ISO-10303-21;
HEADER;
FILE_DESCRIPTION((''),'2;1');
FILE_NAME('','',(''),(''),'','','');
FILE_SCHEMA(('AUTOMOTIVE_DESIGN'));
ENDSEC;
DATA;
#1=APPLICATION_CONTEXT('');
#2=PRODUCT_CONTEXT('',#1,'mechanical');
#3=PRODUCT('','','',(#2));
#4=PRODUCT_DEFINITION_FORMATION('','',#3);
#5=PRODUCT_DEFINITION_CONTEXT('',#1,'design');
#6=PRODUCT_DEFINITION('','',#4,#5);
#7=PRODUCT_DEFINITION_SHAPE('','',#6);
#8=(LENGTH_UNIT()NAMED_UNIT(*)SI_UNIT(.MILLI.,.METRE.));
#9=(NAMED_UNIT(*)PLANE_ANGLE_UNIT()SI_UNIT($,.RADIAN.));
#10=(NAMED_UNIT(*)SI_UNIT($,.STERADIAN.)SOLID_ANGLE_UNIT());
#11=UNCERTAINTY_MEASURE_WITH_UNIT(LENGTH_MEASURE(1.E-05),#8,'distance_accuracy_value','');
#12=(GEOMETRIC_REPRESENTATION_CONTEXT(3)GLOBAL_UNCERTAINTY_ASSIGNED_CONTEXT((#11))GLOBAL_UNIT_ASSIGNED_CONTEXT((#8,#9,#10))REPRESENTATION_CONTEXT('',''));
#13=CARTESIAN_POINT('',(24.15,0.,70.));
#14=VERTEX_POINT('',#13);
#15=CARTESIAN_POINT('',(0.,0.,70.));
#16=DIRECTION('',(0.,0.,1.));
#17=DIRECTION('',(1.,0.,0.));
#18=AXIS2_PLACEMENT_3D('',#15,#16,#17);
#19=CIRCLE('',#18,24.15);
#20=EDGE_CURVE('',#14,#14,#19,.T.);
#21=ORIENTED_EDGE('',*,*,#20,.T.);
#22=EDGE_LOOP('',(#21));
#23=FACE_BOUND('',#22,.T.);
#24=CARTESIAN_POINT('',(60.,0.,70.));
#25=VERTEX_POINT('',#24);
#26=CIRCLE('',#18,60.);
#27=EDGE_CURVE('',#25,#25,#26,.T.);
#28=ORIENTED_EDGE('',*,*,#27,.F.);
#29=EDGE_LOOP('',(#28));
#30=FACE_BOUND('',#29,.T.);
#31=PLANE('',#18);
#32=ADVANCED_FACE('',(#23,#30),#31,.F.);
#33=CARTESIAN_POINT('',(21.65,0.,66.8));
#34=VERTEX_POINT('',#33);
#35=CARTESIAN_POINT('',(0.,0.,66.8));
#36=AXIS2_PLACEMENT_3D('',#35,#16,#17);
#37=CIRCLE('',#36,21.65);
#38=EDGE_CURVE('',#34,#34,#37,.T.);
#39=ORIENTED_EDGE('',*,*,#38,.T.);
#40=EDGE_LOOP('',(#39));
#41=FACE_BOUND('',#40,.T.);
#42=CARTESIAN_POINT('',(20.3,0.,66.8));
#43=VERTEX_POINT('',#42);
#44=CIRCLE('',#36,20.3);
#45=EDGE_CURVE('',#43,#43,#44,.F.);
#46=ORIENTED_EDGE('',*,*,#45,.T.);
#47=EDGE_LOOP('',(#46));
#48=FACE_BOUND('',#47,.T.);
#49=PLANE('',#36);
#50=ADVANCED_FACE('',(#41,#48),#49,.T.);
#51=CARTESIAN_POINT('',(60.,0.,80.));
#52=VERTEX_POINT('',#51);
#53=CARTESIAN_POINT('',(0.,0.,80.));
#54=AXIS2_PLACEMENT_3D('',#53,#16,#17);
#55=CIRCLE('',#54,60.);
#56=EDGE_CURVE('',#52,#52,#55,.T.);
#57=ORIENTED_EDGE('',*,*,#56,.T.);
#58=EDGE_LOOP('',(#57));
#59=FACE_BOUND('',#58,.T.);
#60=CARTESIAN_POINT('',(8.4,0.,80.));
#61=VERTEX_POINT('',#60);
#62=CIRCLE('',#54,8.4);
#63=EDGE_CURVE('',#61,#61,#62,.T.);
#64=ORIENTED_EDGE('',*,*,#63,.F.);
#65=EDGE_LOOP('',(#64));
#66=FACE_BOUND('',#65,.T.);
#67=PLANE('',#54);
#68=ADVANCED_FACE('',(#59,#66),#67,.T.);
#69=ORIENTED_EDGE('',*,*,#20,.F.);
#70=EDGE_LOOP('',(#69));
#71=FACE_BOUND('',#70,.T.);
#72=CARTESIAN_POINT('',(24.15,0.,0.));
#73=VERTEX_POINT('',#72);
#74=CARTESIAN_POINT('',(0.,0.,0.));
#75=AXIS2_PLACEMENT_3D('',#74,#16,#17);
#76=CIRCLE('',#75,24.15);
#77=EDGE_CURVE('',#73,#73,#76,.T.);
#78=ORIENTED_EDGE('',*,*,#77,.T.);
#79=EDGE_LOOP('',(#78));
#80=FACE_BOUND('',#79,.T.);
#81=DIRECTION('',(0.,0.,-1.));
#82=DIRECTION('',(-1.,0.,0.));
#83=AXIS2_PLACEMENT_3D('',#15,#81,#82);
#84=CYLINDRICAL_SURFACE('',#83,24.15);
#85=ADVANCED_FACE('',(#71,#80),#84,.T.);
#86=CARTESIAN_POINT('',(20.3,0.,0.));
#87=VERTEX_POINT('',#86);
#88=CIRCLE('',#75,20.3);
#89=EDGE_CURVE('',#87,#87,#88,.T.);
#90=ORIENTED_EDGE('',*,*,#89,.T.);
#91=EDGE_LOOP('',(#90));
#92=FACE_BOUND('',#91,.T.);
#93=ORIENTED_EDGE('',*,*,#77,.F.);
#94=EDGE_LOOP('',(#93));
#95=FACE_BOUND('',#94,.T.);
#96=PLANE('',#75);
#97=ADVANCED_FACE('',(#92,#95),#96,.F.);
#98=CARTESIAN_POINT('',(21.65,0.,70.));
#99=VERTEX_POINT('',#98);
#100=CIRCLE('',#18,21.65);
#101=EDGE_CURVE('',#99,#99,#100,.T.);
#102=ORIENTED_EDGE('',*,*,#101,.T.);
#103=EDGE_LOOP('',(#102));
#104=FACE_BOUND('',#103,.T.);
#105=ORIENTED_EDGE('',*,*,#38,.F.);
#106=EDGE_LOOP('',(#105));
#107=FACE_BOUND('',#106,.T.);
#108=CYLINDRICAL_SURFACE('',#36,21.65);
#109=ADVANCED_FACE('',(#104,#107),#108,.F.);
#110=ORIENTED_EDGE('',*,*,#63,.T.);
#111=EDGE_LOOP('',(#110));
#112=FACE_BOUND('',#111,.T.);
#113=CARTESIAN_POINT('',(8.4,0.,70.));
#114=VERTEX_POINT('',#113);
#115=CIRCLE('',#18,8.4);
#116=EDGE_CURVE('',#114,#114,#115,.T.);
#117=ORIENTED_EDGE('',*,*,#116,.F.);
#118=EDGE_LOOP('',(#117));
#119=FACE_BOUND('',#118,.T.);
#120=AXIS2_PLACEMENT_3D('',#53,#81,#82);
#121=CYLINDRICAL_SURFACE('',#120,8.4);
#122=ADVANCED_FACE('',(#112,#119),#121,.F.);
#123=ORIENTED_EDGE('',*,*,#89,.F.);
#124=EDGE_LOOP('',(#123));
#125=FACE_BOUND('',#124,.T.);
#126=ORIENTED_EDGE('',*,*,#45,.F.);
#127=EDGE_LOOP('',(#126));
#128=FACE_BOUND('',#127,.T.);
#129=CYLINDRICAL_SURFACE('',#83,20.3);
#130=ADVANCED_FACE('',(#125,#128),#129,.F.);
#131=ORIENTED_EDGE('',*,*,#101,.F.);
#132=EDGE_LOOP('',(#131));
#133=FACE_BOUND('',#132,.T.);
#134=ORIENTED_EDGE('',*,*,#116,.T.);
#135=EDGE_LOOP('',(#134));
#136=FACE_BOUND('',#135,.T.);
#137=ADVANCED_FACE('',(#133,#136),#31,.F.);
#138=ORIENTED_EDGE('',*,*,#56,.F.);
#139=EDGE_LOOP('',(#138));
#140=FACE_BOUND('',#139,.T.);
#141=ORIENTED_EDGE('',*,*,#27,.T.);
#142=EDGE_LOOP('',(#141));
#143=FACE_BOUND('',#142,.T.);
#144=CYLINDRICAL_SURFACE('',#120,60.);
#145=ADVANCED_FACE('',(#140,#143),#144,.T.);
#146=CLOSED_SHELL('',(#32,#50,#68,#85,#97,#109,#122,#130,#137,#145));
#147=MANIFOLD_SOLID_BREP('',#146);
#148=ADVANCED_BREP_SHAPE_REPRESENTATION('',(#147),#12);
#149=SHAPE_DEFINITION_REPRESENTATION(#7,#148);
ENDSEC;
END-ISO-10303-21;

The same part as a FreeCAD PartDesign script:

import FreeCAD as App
import Part
import Sketcher

V = App.Vector

doc = App.newDocument("Part")
body = doc.addObject("PartDesign::Body", "Body")

# Sketch on XY plane
sketch1 = body.newObject("Sketcher::SketchObject", "Sketch")
sketch1.AttachmentSupport = (doc.getObject("XY_Plane"), [""])
sketch1.MapMode = "FlatFace"
sketch1.addGeometry([
    Part.Circle(V(0, 0, 0), V(0, 0, 1), 24),
    Part.Circle(V(0, 0, 0), V(0, 0, 1), 20),
], False)
sketch1.addConstraint([
    Sketcher.Constraint("Coincident", 0, 3, -1, 1),
    Sketcher.Constraint("Coincident", 1, 3, -1, 1),
    Sketcher.Constraint("Diameter", 0, 48.3),
    Sketcher.Constraint("Diameter", 1, 40.6),
])
pad1 = body.newObject("PartDesign::Pad", "Pad")
pad1.Profile = sketch1
pad1.Length = 70

# Sketch on XY plane
sketch2 = body.newObject("Sketcher::SketchObject", "Sketch001")
sketch2.AttachmentSupport = (doc.getObject("XY_Plane"), [""])
sketch2.MapMode = "FlatFace"
sketch2.AttachmentOffset = App.Placement(V(0, 0, 66.8), App.Rotation())
sketch2.addGeometry([
    Part.Circle(V(0, 0, 0), V(0, 0, 1), 22),
    Part.Circle(V(0, 0, 0), V(0, 0, 1), 20),
], False)
sketch2.addConstraint([
    Sketcher.Constraint("Coincident", 0, 3, -1, 1),
    Sketcher.Constraint("Coincident", 1, 3, -1, 1),
    Sketcher.Constraint("Diameter", 0, 43.3),
    Sketcher.Constraint("Diameter", 1, 40.6),
])
pocket1 = body.newObject("PartDesign::Pocket", "Pocket")
pocket1.Profile = sketch2
pocket1.Length = 3.2
pocket1.Reversed = True

# Sketch on XY plane
sketch3 = body.newObject("Sketcher::SketchObject", "Sketch002")
sketch3.AttachmentSupport = (doc.getObject("XY_Plane"), [""])
sketch3.MapMode = "FlatFace"
sketch3.AttachmentOffset = App.Placement(V(0, 0, 70), App.Rotation())
sketch3.addGeometry([
    Part.Circle(V(0, 0, 0), V(0, 0, 1), 60),
    Part.Circle(V(0, 0, 0), V(0, 0, 1), 8),
], False)
sketch3.addConstraint([
    Sketcher.Constraint("Coincident", 0, 3, -1, 1),
    Sketcher.Constraint("Coincident", 1, 3, -1, 1),
    Sketcher.Constraint("Diameter", 0, 120.0),
    Sketcher.Constraint("Diameter", 1, 16.8),
])
pad2 = body.newObject("PartDesign::Pad", "Pad001")
pad2.Profile = sketch3
pad2.Length = 10

doc.recompute()
